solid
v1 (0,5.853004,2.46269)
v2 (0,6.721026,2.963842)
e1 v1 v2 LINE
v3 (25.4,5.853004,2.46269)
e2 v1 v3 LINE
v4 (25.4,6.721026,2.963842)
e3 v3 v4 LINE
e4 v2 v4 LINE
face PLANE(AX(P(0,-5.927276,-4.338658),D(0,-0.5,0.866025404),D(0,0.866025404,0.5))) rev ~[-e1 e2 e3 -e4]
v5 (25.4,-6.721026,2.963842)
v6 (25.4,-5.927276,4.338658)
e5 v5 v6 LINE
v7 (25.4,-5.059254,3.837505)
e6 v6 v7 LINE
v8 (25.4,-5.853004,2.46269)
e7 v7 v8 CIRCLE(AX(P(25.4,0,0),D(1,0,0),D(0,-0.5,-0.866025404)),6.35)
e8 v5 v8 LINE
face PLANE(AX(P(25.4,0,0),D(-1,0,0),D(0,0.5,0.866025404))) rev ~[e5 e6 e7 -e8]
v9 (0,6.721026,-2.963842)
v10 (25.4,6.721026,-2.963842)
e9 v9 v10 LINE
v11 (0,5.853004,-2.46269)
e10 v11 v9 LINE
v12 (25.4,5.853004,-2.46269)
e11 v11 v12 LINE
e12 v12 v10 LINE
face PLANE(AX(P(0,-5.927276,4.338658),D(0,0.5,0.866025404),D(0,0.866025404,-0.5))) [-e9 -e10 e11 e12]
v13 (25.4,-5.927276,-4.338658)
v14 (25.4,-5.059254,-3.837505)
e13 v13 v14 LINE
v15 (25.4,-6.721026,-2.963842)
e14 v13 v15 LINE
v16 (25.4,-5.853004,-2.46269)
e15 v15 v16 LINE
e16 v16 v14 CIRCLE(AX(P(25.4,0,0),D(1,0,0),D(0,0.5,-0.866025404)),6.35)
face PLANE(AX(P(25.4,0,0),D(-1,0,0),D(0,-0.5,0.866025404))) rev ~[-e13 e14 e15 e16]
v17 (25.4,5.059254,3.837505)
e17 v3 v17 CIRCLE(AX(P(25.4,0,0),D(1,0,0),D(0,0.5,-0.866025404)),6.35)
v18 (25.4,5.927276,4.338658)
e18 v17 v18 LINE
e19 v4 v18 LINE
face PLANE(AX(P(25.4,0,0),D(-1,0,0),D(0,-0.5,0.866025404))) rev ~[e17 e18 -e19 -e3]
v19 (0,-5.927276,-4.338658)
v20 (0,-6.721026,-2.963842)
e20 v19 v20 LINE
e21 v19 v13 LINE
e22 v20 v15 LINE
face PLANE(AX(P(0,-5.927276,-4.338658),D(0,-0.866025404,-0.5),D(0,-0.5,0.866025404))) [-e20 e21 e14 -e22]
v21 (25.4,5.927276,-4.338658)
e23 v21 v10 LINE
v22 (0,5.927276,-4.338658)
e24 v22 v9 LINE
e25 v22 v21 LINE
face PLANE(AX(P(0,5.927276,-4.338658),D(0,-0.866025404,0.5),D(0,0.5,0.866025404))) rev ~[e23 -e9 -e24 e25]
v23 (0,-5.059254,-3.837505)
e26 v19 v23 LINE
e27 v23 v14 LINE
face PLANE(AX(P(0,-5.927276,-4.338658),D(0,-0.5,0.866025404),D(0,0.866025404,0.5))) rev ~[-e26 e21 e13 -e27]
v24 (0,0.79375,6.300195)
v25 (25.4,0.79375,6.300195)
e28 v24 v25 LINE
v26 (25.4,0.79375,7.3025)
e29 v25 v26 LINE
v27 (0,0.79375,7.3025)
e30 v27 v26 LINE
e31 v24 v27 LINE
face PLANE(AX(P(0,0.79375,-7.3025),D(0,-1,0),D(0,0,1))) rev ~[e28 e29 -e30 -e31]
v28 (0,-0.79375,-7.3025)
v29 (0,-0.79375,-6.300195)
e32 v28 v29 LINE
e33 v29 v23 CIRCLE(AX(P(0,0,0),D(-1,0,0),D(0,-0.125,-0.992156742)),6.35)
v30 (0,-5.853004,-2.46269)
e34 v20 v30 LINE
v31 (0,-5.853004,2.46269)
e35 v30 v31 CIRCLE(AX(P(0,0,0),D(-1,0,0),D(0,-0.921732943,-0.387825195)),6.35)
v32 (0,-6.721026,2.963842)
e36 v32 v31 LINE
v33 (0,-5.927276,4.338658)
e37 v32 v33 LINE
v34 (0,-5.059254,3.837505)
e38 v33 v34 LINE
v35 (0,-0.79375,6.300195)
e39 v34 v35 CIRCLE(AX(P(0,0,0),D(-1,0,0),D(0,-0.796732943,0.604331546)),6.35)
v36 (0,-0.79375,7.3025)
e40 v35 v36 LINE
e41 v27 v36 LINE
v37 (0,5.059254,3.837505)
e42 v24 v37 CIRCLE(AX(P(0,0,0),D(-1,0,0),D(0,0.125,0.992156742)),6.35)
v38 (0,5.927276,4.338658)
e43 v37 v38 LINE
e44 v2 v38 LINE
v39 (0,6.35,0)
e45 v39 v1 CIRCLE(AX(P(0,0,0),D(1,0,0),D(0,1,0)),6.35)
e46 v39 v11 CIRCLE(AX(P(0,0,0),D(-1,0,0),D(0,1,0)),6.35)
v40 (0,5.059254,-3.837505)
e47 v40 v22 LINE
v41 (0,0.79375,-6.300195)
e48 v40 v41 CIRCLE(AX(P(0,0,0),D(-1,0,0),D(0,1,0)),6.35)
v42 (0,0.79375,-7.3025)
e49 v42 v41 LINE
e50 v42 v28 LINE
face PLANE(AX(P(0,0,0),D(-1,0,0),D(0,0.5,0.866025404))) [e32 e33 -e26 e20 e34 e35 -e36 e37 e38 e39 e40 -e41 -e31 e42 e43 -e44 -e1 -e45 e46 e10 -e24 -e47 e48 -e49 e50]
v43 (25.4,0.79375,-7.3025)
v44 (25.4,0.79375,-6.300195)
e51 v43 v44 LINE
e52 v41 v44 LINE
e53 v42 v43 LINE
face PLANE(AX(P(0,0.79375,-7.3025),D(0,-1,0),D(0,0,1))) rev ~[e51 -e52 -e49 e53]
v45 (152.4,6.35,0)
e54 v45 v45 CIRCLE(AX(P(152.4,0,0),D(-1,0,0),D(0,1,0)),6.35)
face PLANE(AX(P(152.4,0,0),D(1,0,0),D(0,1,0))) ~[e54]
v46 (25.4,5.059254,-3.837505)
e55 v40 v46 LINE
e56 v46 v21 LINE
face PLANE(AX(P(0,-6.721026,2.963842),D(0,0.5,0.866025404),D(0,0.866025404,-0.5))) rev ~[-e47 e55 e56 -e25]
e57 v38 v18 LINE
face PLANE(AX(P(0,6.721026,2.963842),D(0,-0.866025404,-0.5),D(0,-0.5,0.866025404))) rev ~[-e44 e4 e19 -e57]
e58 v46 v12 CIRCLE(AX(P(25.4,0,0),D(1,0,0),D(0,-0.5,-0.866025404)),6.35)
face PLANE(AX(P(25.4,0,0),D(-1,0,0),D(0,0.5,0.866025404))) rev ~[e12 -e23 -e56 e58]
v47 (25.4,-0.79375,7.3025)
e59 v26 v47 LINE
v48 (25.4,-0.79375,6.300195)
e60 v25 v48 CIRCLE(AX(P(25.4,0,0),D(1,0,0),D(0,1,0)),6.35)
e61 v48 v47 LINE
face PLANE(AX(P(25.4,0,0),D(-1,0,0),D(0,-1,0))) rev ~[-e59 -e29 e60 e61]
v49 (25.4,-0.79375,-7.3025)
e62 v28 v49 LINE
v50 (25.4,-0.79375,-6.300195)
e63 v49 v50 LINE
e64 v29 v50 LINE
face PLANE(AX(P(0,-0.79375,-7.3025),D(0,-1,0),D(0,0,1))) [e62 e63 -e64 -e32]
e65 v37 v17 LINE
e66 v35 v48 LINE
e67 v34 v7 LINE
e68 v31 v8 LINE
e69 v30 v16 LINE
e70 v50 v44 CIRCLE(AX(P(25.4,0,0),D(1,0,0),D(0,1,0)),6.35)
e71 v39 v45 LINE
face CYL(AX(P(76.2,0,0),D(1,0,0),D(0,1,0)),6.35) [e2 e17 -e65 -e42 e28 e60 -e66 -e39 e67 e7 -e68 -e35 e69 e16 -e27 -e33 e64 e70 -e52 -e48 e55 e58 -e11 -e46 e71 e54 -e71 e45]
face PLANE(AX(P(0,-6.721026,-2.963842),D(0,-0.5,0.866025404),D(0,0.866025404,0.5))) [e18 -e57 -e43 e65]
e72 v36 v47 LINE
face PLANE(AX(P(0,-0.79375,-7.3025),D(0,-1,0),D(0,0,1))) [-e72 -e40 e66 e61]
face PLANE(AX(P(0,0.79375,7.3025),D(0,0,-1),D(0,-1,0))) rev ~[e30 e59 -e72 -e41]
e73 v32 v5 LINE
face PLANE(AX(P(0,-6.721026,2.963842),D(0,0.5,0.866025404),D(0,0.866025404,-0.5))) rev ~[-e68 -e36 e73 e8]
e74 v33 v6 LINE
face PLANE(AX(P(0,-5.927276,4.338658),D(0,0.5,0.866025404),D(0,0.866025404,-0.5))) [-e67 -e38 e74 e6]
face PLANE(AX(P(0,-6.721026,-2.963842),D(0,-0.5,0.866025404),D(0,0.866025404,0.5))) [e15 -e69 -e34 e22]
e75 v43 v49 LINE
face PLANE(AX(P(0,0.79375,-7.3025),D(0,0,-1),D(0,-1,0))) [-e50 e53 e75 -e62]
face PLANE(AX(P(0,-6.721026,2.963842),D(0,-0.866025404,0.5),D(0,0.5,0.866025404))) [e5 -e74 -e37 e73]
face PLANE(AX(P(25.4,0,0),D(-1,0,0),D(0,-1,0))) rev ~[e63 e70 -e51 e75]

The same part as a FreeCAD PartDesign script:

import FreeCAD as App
import Part
import Sketcher

V = App.Vector
Q = App.Units.Quantity

doc = App.newDocument("Part")
params = doc.addObject("Spreadsheet::Sheet", "Params")
for row, (alias, value) in enumerate([
    ("sketch1_width", "6 in"),
    ("sketch1_height", "0.25 in"),
    ("revolution_angle", "360 deg"),
    ("sketch2_width", "0.0625 in"),
    ("sketch2_height", "0.575 in"),
    ("pad1_length", "1 in"),
], start=1):
    params.set(f"A{row}", alias)
    params.set(f"B{row}", "=" + value)
    params.setAlias(f"B{row}", alias)

body = doc.addObject("PartDesign::Body", "Body")

# Sketch on XY plane
sketch1 = doc.addObject("Sketcher::SketchObject", "Sketch")
body.addObject(sketch1)
sketch1.AttachmentSupport = (doc.XY_Plane, [""])
sketch1.MapMode = "FlatFace"
sketch1.addGeometry([
    Part.LineSegment(V(0, 6, 0), V(0, 0, 0)),
    Part.LineSegment(V(0, 0, 0), V(152, 0, 0)),
    Part.LineSegment(V(152, 0, 0), V(152, 6, 0)),
    Part.LineSegment(V(152, 6, 0), V(0, 6, 0)),
], False)
sketch1.addConstraint([
    Sketcher.Constraint("Coincident", 0, 2, 1, 1),
    Sketcher.Constraint("Coincident", 1, 2, 2, 1),
    Sketcher.Constraint("Coincident", 2, 2, 3, 1),
    Sketcher.Constraint("Coincident", 3, 2, 0, 1),
    Sketcher.Constraint("Vertical", 0),
    Sketcher.Constraint("Horizontal", 1),
    Sketcher.Constraint("Vertical", 2),
    Sketcher.Constraint("Horizontal", 3),
    Sketcher.Constraint("Coincident", 0, 2, -1, 1),
    Sketcher.Constraint("DistanceX", 1, 1, 1, 2, Q("6 in")),
    Sketcher.Constraint("DistanceY", 0, 2, 0, 1, Q("0.25 in")),
])
sketch1.setExpression("Constraints[9]", "Params.sketch1_width")
sketch1.setExpression("Constraints[10]", "Params.sketch1_height")
revolution = doc.addObject("PartDesign::Revolution", "Revolution")
body.addObject(revolution)
revolution.Profile = sketch1
revolution.ReferenceAxis = (sketch1, ["H_Axis"])
revolution.setExpression("Angle", "Params.revolution_angle")

# Sketch on YZ plane
sketch2 = doc.addObject("Sketcher::SketchObject", "Sketch001")
body.addObject(sketch2)
sketch2.AttachmentSupport = (doc.YZ_Plane, [""])
sketch2.MapMode = "FlatFace"
sketch2.addGeometry([
    Part.LineSegment(V(0.8, 7.3, 0), V(0.8, -7.3, 0)),
    Part.LineSegment(V(0.8, -7.3, 0), V(-0.8, -7.3, 0)),
    Part.LineSegment(V(-0.8, -7.3, 0), V(-0.8, 7.3, 0)),
    Part.LineSegment(V(-0.8, 7.3, 0), V(0.8, 7.3, 0)),
], False)
sketch2.addConstraint([
    Sketcher.Constraint("Coincident", 0, 2, 1, 1),
    Sketcher.Constraint("Coincident", 1, 2, 2, 1),
    Sketcher.Constraint("Coincident", 2, 2, 3, 1),
    Sketcher.Constraint("Coincident", 3, 2, 0, 1),
    Sketcher.Constraint("Vertical", 0),
    Sketcher.Constraint("Horizontal", 1),
    Sketcher.Constraint("Vertical", 2),
    Sketcher.Constraint("Horizontal", 3),
    Sketcher.Constraint("Symmetric", 0, 2, 2, 2, -1, 1),
    Sketcher.Constraint("DistanceX", 1, 2, 1, 1, Q("0.0625 in")),
    Sketcher.Constraint("DistanceY", 0, 2, 0, 1, Q("0.575 in")),
])
sketch2.setExpression("Constraints[9]", "Params.sketch2_width")
sketch2.setExpression("Constraints[10]", "Params.sketch2_height")
pad1 = doc.addObject("PartDesign::Pad", "Pad")
body.addObject(pad1)
pad1.Profile = sketch2
pad1.setExpression("Length", "Params.pad1_length")
body2 = doc.addObject("PartDesign::Body", "Body001")
doc.recompute()

body2.BaseFeature = body
doc.recompute()

body3 = doc.addObject("PartDesign::Body", "Body002")
body3.BaseFeature = body
body3.Placement = App.Placement(V(0, 0, 0), App.Rotation(V(-1, 0, 0), 60))
boolean = doc.addObject("PartDesign::Boolean", "Boolean")
body2.addObject(boolean)
boolean.Type = "Fuse"
boolean.addObjects([body3])
doc.recompute()

body4 = doc.addObject("PartDesign::Body", "Body003")
body4.BaseFeature = body
body4.Placement = App.Placement(V(0, 0, 0), App.Rotation(V(-1, 0, 0), 120))
boolean2 = doc.addObject("PartDesign::Boolean", "Boolean001")
body2.addObject(boolean2)
boolean2.Type = "Fuse"
boolean2.addObjects([body4])
doc.recompute()

body5 = doc.addObject("PartDesign::Body", "Body004")
body5.BaseFeature = body
body5.Placement = App.Placement(V(0, 0, 0), App.Rotation(V(-1, 0, 0), 180))
boolean3 = doc.addObject("PartDesign::Boolean", "Boolean002")
body2.addObject(boolean3)
boolean3.Type = "Fuse"
boolean3.addObjects([body5])
doc.recompute()

body6 = doc.addObject("PartDesign::Body", "Body005")
body6.BaseFeature = body
body6.Placement = App.Placement(V(0, 0, 0), App.Rotation(V(-1, 0, 0), 240))
boolean4 = doc.addObject("PartDesign::Boolean", "Boolean003")
body2.addObject(boolean4)
boolean4.Type = "Fuse"
boolean4.addObjects([body6])
doc.recompute()

body.Placement = App.Placement(V(0, 0, 0), App.Rotation(V(-1, 0, 0), 300))
boolean5 = doc.addObject("PartDesign::Boolean", "Boolean004")
body2.addObject(boolean5)
boolean5.Type = "Fuse"
boolean5.addObjects([body])

doc.recompute()
